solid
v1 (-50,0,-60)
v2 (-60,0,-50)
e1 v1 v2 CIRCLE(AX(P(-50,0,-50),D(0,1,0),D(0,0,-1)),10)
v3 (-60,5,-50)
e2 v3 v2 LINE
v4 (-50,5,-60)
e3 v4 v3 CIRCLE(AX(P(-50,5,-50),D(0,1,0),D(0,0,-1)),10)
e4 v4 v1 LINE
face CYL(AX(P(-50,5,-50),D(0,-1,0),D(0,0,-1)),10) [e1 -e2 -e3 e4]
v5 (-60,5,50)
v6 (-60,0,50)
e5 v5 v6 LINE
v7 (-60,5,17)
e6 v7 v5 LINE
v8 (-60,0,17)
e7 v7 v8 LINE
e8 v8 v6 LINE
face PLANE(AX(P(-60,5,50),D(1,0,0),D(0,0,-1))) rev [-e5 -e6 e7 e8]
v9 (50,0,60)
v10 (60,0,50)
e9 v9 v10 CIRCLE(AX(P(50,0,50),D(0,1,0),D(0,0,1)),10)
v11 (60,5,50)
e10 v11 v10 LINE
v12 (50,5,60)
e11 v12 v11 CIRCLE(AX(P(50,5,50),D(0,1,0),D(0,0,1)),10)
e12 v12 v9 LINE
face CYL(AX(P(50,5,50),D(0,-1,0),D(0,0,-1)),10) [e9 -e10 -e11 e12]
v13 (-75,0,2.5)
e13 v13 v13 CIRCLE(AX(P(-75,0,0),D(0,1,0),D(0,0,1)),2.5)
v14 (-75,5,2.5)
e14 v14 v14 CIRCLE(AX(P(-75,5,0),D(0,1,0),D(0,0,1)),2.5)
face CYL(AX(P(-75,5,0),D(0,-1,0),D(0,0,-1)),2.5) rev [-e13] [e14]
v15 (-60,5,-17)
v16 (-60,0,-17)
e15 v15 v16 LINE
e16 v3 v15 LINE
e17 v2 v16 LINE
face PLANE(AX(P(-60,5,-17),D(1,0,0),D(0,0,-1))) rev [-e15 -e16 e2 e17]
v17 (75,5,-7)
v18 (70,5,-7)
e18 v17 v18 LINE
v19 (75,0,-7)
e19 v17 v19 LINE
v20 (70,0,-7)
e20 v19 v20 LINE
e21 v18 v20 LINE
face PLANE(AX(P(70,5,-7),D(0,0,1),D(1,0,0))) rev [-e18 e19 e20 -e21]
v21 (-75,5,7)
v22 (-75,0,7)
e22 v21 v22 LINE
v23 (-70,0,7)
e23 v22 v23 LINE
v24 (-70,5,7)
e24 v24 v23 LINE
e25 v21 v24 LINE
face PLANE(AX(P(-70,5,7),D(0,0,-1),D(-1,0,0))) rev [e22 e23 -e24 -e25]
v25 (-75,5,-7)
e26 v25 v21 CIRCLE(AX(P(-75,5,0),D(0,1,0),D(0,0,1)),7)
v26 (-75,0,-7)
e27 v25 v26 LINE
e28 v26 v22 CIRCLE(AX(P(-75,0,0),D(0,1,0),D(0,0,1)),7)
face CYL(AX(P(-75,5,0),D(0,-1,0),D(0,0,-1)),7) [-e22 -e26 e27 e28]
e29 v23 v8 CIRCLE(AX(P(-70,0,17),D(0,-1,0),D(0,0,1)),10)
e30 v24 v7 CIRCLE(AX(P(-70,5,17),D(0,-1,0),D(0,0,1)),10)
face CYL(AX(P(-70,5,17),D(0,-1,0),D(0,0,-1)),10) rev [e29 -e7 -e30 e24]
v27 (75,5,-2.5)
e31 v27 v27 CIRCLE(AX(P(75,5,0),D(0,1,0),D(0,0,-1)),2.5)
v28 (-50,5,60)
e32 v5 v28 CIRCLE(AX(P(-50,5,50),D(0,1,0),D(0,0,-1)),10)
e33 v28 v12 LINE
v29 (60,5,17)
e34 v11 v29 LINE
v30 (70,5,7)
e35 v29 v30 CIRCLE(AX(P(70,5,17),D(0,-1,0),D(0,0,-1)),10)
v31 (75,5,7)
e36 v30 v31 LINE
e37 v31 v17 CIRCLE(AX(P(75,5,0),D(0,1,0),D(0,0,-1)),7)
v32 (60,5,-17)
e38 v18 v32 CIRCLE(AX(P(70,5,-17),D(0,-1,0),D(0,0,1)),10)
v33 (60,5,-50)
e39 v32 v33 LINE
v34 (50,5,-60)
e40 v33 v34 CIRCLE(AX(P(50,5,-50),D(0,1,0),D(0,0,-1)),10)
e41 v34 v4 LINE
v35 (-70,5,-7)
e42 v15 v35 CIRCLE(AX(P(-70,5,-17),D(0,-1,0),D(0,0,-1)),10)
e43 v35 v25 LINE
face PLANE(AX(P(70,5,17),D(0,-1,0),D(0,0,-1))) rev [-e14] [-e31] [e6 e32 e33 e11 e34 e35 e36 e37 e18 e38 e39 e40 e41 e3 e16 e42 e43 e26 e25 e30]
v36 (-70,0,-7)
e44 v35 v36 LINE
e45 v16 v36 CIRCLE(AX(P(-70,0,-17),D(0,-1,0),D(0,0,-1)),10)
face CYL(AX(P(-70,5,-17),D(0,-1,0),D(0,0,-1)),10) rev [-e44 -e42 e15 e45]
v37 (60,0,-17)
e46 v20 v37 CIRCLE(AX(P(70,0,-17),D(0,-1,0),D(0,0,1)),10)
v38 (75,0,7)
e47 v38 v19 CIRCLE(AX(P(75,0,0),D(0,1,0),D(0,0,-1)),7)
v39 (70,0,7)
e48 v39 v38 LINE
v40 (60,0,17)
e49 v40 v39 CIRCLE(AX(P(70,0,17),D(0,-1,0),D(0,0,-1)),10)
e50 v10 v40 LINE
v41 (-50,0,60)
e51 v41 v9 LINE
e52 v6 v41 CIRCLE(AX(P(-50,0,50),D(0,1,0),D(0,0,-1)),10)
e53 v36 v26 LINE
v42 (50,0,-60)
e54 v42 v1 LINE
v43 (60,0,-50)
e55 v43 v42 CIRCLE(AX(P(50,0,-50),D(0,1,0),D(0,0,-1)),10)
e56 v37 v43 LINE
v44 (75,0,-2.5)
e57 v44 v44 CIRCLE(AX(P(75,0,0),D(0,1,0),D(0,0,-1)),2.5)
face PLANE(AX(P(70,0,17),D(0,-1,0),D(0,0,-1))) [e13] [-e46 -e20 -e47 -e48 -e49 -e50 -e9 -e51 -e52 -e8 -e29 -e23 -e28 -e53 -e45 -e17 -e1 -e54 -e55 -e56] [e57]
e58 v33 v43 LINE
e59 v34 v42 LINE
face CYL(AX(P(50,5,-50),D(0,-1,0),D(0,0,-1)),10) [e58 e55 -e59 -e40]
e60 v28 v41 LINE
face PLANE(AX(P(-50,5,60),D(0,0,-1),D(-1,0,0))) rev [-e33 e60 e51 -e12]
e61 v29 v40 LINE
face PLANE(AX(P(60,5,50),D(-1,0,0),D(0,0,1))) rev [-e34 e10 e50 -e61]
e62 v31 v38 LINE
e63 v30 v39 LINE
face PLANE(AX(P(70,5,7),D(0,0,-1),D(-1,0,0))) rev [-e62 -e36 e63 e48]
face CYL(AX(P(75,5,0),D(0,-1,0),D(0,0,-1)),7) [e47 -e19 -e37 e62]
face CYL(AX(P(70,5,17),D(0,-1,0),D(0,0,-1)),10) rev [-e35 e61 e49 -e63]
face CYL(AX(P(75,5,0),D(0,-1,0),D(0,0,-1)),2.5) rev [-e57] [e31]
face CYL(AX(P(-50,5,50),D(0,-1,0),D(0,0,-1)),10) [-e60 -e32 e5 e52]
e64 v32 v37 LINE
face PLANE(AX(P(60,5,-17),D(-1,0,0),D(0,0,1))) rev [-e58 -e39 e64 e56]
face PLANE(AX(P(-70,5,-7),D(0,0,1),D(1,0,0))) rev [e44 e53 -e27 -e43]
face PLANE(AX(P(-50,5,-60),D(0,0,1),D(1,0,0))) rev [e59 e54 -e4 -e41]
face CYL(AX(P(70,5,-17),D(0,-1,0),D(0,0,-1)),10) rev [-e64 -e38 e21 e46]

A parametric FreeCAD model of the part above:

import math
import FreeCAD as App
import Part
import Sketcher

V = App.Vector

doc = App.newDocument("Part")
body = doc.addObject("PartDesign::Body", "Body")

# Sketch on XZ plane
sketch1 = doc.addObject("Sketcher::SketchObject", "Sketch")
body.addObject(sketch1)
sketch1.AttachmentSupport = (doc.XZ_Plane, [""])
sketch1.MapMode = "FlatFace"
sketch1.addGeometry(Part.LineSegment(V(70, 7, 0), V(75, 7, 0)), False)
sketch1.addGeometry(Part.ArcOfCircle(Part.Circle(V(75, 0, 0), V(0, 0, 1), 7), math.radians(-90), math.radians(90)), False)
sketch1.addGeometry(Part.LineSegment(V(75, -7, 0), V(70, -7, 0)), False)
sketch1.addGeometry(Part.ArcOfCircle(Part.Circle(V(70, -17, 0), V(0, 0, 1), 10), math.radians(90), math.radians(180)), False)
sketch1.addGeometry(Part.LineSegment(V(60, -17, 0), V(60, -50, 0)), False)
sketch1.addGeometry(Part.ArcOfCircle(Part.Circle(V(50, -50, 0), V(0, 0, 1), 10), math.radians(-90), math.radians(0)), False)
sketch1.addGeometry(Part.LineSegment(V(50, -60, 0), V(-50, -60, 0)), False)
sketch1.addGeometry(Part.ArcOfCircle(Part.Circle(V(-50, -50, 0), V(0, 0, 1), 10), math.radians(180), math.radians(270)), False)
sketch1.addGeometry(Part.LineSegment(V(-60, -50, 0), V(-60, -17, 0)), False)
sketch1.addGeometry(Part.ArcOfCircle(Part.Circle(V(-70, -17, 0), V(0, 0, 1), 10), math.radians(0), math.radians(90)), False)
sketch1.addGeometry(Part.LineSegment(V(-70, -7, 0), V(-75, -7, 0)), False)
sketch1.addGeometry(Part.ArcOfCircle(Part.Circle(V(-75, 0, 0), V(0, 0, 1), 7), math.radians(90), math.radians(270)), False)
sketch1.addGeometry(Part.LineSegment(V(-75, 7, 0), V(-70, 7, 0)), False)
sketch1.addGeometry(Part.ArcOfCircle(Part.Circle(V(-70, 17, 0), V(0, 0, 1), 10), math.radians(-90), math.radians(0)), False)
sketch1.addGeometry(Part.LineSegment(V(-60, 17, 0), V(-60, 50, 0)), False)
sketch1.addGeometry(Part.ArcOfCircle(Part.Circle(V(-50, 50, 0), V(0, 0, 1), 10), math.radians(90), math.radians(180)), False)
sketch1.addGeometry(Part.LineSegment(V(-50, 60, 0), V(50, 60, 0)), False)
sketch1.addGeometry(Part.ArcOfCircle(Part.Circle(V(50, 50, 0), V(0, 0, 1), 10), math.radians(0), math.radians(90)), False)
sketch1.addGeometry(Part.LineSegment(V(60, 50, 0), V(60, 17, 0)), False)
sketch1.addGeometry(Part.ArcOfCircle(Part.Circle(V(70, 17, 0), V(0, 0, 1), 10), math.radians(180), math.radians(270)), False)
sketch1.addGeometry(Part.Circle(V(-75, 0, 0), V(0, 0, 1), 2.5), False)
sketch1.addGeometry(Part.Circle(V(75, 0, 0), V(0, 0, 1), 2.5), False)
sketch1.addConstraint(Sketcher.Constraint("Tangent", 0, 2, 1, 2))
sketch1.addConstraint(Sketcher.Constraint("Tangent", 1, 1, 2, 1))
sketch1.addConstraint(Sketcher.Constraint("Tangent", 2, 2, 3, 1))
sketch1.addConstraint(Sketcher.Constraint("Tangent", 3, 2, 4, 1))
sketch1.addConstraint(Sketcher.Constraint("Tangent", 4, 2, 5, 2))
sketch1.addConstraint(Sketcher.Constraint("Tangent", 5, 1, 6, 1))
sketch1.addConstraint(Sketcher.Constraint("Tangent", 6, 2, 7, 2))
sketch1.addConstraint(Sketcher.Constraint("Tangent", 7, 1, 8, 1))
sketch1.addConstraint(Sketcher.Constraint("Tangent", 8, 2, 9, 1))
sketch1.addConstraint(Sketcher.Constraint("Tangent", 9, 2, 10, 1))
sketch1.addConstraint(Sketcher.Constraint("Tangent", 10, 2, 11, 2))
sketch1.addConstraint(Sketcher.Constraint("Tangent", 11, 1, 12, 1))
sketch1.addConstraint(Sketcher.Constraint("Tangent", 12, 2, 13, 1))
sketch1.addConstraint(Sketcher.Constraint("Tangent", 13, 2, 14, 1))
sketch1.addConstraint(Sketcher.Constraint("Tangent", 14, 2, 15, 2))
sketch1.addConstraint(Sketcher.Constraint("Tangent", 15, 1, 16, 1))
sketch1.addConstraint(Sketcher.Constraint("Tangent", 16, 2, 17, 2))
sketch1.addConstraint(Sketcher.Constraint("Tangent", 17, 1, 18, 1))
sketch1.addConstraint(Sketcher.Constraint("Tangent", 18, 2, 19, 1))
sketch1.addConstraint(Sketcher.Constraint("Tangent", 19, 2, 0, 1))
sketch1.addConstraint(Sketcher.Constraint("Horizontal", 0))
sketch1.addConstraint(Sketcher.Constraint("Horizontal", 2))
sketch1.addConstraint(Sketcher.Constraint("Vertical", 4))
sketch1.addConstraint(Sketcher.Constraint("Horizontal", 6))
sketch1.addConstraint(Sketcher.Constraint("Vertical", 8))
sketch1.addConstraint(Sketcher.Constraint("Horizontal", 10))
sketch1.addConstraint(Sketcher.Constraint("Horizontal", 12))
sketch1.addConstraint(Sketcher.Constraint("Vertical", 14))
sketch1.addConstraint(Sketcher.Constraint("Horizontal", 16))
sketch1.addConstraint(Sketcher.Constraint("Vertical", 18))
sketch1.addConstraint(Sketcher.Constraint("Coincident", 20, 3, 11, 3))
sketch1.addConstraint(Sketcher.Constraint("Coincident", 21, 3, 1, 3))
sketch1.addConstraint(Sketcher.Constraint("Equal", 3, 5))
sketch1.addConstraint(Sketcher.Constraint("Equal", 5, 7))
sketch1.addConstraint(Sketcher.Constraint("Equal", 7, 9))
sketch1.addConstraint(Sketcher.Constraint("Equal", 1, 11))
sketch1.addConstraint(Sketcher.Constraint("Equal", 9, 13))
sketch1.addConstraint(Sketcher.Constraint("Equal", 13, 15))
sketch1.addConstraint(Sketcher.Constraint("Equal", 15, 17))
sketch1.addConstraint(Sketcher.Constraint("Equal", 17, 19))
sketch1.addConstraint(Sketcher.Constraint("Equal", 20, 21))
sketch1.addConstraint(Sketcher.Constraint("Symmetric", 1, 3, 11, 3, -1, 1))
sketch1.addConstraint(Sketcher.Constraint("Symmetric", 5, 3, 15, 3, -1, 1))
sketch1.addConstraint(Sketcher.Constraint("Symmetric", 3, 3, 9, 3, -2))
sketch1.addConstraint(Sketcher.Constraint("Vertical", 5, 3, 17, 3))
sketch1.addConstraint(Sketcher.Constraint("Diameter", 20, 5.0))
sketch1.addConstraint(Sketcher.Constraint("Radius", 1, 7.0))
sketch1.addConstraint(Sketcher.Constraint("Radius", 3, 10.0))
sketch1.addConstraint(Sketcher.Constraint("DistanceX", 0, 1, 0, 2, 5.0))
sketch1.addConstraint(Sketcher.Constraint("DistanceX", 6, 2, 6, 1, 100.0))
sketch1.addConstraint(Sketcher.Constraint("DistanceY", 4, 2, 4, 1, 33.0))
pad1 = doc.addObject("PartDesign::Pad", "Pad")
body.addObject(pad1)
pad1.Profile = sketch1
pad1.Length = 5
pad1.Reversed = True

doc.recompute()
